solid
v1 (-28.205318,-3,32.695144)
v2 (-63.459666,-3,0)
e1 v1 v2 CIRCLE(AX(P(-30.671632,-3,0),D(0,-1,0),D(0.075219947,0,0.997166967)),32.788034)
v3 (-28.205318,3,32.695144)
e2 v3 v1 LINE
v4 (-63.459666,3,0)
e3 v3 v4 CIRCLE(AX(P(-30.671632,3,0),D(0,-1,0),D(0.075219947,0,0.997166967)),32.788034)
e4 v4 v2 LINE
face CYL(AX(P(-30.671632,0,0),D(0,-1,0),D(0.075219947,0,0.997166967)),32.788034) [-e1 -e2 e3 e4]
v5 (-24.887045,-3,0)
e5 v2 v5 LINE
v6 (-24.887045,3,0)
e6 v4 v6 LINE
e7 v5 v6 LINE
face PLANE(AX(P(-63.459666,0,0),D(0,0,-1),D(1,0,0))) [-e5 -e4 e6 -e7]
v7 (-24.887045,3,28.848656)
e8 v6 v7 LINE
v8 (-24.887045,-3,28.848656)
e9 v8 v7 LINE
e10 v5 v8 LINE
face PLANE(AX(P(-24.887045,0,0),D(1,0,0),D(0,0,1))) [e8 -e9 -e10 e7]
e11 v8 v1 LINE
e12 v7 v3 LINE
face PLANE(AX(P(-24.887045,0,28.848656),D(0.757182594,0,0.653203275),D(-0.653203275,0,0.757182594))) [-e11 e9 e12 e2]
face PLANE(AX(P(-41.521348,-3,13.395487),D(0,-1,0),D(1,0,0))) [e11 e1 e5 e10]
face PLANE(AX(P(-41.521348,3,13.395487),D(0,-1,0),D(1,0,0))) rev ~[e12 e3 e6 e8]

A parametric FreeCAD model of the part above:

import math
import FreeCAD as App
import Part
import Sketcher
from FreeCAD import Vector

doc = App.newDocument("Part")
body = doc.addObject("PartDesign::Body", "Body")

sketch1 = body.newObject("Sketcher::SketchObject", "Sketch")
sketch1.AttachmentSupport = (doc.getObject("XZ_Plane"), [""])
sketch1.MapMode = "FlatFace"
sketch1.addGeometry([
    Part.LineSegment(Vector(-25, 29, 0), Vector(-28, 33, 0)),
    Part.ArcOfCircle(Part.Circle(Vector(-31, 0, 0), Vector(0, 0, 1), 33), math.radians(86), math.radians(180)),
    Part.LineSegment(Vector(-63, 0, 0), Vector(-25, 0, 0)),
    Part.LineSegment(Vector(-25, 0, 0), Vector(-25, 29, 0)),
], False)
sketch1.addConstraint([
    Sketcher.Constraint("Coincident", 0, 2, 1, 1),
    Sketcher.Constraint("Coincident", 1, 2, 2, 1),
    Sketcher.Constraint("Coincident", 2, 2, 3, 1),
    Sketcher.Constraint("Coincident", 3, 2, 0, 1),
    Sketcher.Constraint("Horizontal", 2),
    Sketcher.Constraint("Vertical", 3),
    Sketcher.Constraint("PointOnObject", 1, 3, -1),
    Sketcher.Constraint("PointOnObject", 1, 2, -1),
    Sketcher.Constraint("Distance", 0, 5.080001),
    Sketcher.Constraint("Radius", 1, 32.788034),
    Sketcher.Constraint("DistanceX", 2, 1, 2, 2, 38.572621),
    Sketcher.Constraint("DistanceY", 3, 1, 3, 2, 28.848656),
    Sketcher.Constraint("DistanceX", 1, 3, -1, 1, 30.671632),
])
pad1 = body.newObject("PartDesign::Pad", "Pad")
pad1.Profile = sketch1
pad1.Length = 3

sketch2 = body.newObject("Sketcher::SketchObject", "Sketch001")
sketch2.AttachmentSupport = (doc.getObject("XZ_Plane"), [""])
sketch2.MapMode = "FlatFace"
sketch2.addGeometry([
    Part.LineSegment(Vector(-25, 29, 0), Vector(-28, 33, 0)),
    Part.ArcOfCircle(Part.Circle(Vector(-31, 0, 0), Vector(0, 0, 1), 33), math.radians(86), math.radians(180)),
    Part.LineSegment(Vector(-63, 0, 0), Vector(-25, 0, 0)),
    Part.LineSegment(Vector(-25, 0, 0), Vector(-25, 29, 0)),
], False)
sketch2.addConstraint([
    Sketcher.Constraint("Coincident", 0, 2, 1, 1),
    Sketcher.Constraint("Coincident", 1, 2, 2, 1),
    Sketcher.Constraint("Coincident", 2, 2, 3, 1),
    Sketcher.Constraint("Coincident", 3, 2, 0, 1),
    Sketcher.Constraint("Horizontal", 2),
    Sketcher.Constraint("Vertical", 3),
    Sketcher.Constraint("PointOnObject", 1, 3, -1),
    Sketcher.Constraint("PointOnObject", 1, 2, -1),
    Sketcher.Constraint("Distance", 0, 5.080001),
    Sketcher.Constraint("Radius", 1, 32.788034),
    Sketcher.Constraint("DistanceX", 2, 1, 2, 2, 38.572621),
    Sketcher.Constraint("DistanceY", 3, 1, 3, 2, 28.848656),
    Sketcher.Constraint("DistanceX", 1, 3, -1, 1, 30.671632),
])
pad2 = body.newObject("PartDesign::Pad", "Pad001")
pad2.Profile = sketch2
pad2.Length = 3
pad2.Reversed = True

doc.recompute()
